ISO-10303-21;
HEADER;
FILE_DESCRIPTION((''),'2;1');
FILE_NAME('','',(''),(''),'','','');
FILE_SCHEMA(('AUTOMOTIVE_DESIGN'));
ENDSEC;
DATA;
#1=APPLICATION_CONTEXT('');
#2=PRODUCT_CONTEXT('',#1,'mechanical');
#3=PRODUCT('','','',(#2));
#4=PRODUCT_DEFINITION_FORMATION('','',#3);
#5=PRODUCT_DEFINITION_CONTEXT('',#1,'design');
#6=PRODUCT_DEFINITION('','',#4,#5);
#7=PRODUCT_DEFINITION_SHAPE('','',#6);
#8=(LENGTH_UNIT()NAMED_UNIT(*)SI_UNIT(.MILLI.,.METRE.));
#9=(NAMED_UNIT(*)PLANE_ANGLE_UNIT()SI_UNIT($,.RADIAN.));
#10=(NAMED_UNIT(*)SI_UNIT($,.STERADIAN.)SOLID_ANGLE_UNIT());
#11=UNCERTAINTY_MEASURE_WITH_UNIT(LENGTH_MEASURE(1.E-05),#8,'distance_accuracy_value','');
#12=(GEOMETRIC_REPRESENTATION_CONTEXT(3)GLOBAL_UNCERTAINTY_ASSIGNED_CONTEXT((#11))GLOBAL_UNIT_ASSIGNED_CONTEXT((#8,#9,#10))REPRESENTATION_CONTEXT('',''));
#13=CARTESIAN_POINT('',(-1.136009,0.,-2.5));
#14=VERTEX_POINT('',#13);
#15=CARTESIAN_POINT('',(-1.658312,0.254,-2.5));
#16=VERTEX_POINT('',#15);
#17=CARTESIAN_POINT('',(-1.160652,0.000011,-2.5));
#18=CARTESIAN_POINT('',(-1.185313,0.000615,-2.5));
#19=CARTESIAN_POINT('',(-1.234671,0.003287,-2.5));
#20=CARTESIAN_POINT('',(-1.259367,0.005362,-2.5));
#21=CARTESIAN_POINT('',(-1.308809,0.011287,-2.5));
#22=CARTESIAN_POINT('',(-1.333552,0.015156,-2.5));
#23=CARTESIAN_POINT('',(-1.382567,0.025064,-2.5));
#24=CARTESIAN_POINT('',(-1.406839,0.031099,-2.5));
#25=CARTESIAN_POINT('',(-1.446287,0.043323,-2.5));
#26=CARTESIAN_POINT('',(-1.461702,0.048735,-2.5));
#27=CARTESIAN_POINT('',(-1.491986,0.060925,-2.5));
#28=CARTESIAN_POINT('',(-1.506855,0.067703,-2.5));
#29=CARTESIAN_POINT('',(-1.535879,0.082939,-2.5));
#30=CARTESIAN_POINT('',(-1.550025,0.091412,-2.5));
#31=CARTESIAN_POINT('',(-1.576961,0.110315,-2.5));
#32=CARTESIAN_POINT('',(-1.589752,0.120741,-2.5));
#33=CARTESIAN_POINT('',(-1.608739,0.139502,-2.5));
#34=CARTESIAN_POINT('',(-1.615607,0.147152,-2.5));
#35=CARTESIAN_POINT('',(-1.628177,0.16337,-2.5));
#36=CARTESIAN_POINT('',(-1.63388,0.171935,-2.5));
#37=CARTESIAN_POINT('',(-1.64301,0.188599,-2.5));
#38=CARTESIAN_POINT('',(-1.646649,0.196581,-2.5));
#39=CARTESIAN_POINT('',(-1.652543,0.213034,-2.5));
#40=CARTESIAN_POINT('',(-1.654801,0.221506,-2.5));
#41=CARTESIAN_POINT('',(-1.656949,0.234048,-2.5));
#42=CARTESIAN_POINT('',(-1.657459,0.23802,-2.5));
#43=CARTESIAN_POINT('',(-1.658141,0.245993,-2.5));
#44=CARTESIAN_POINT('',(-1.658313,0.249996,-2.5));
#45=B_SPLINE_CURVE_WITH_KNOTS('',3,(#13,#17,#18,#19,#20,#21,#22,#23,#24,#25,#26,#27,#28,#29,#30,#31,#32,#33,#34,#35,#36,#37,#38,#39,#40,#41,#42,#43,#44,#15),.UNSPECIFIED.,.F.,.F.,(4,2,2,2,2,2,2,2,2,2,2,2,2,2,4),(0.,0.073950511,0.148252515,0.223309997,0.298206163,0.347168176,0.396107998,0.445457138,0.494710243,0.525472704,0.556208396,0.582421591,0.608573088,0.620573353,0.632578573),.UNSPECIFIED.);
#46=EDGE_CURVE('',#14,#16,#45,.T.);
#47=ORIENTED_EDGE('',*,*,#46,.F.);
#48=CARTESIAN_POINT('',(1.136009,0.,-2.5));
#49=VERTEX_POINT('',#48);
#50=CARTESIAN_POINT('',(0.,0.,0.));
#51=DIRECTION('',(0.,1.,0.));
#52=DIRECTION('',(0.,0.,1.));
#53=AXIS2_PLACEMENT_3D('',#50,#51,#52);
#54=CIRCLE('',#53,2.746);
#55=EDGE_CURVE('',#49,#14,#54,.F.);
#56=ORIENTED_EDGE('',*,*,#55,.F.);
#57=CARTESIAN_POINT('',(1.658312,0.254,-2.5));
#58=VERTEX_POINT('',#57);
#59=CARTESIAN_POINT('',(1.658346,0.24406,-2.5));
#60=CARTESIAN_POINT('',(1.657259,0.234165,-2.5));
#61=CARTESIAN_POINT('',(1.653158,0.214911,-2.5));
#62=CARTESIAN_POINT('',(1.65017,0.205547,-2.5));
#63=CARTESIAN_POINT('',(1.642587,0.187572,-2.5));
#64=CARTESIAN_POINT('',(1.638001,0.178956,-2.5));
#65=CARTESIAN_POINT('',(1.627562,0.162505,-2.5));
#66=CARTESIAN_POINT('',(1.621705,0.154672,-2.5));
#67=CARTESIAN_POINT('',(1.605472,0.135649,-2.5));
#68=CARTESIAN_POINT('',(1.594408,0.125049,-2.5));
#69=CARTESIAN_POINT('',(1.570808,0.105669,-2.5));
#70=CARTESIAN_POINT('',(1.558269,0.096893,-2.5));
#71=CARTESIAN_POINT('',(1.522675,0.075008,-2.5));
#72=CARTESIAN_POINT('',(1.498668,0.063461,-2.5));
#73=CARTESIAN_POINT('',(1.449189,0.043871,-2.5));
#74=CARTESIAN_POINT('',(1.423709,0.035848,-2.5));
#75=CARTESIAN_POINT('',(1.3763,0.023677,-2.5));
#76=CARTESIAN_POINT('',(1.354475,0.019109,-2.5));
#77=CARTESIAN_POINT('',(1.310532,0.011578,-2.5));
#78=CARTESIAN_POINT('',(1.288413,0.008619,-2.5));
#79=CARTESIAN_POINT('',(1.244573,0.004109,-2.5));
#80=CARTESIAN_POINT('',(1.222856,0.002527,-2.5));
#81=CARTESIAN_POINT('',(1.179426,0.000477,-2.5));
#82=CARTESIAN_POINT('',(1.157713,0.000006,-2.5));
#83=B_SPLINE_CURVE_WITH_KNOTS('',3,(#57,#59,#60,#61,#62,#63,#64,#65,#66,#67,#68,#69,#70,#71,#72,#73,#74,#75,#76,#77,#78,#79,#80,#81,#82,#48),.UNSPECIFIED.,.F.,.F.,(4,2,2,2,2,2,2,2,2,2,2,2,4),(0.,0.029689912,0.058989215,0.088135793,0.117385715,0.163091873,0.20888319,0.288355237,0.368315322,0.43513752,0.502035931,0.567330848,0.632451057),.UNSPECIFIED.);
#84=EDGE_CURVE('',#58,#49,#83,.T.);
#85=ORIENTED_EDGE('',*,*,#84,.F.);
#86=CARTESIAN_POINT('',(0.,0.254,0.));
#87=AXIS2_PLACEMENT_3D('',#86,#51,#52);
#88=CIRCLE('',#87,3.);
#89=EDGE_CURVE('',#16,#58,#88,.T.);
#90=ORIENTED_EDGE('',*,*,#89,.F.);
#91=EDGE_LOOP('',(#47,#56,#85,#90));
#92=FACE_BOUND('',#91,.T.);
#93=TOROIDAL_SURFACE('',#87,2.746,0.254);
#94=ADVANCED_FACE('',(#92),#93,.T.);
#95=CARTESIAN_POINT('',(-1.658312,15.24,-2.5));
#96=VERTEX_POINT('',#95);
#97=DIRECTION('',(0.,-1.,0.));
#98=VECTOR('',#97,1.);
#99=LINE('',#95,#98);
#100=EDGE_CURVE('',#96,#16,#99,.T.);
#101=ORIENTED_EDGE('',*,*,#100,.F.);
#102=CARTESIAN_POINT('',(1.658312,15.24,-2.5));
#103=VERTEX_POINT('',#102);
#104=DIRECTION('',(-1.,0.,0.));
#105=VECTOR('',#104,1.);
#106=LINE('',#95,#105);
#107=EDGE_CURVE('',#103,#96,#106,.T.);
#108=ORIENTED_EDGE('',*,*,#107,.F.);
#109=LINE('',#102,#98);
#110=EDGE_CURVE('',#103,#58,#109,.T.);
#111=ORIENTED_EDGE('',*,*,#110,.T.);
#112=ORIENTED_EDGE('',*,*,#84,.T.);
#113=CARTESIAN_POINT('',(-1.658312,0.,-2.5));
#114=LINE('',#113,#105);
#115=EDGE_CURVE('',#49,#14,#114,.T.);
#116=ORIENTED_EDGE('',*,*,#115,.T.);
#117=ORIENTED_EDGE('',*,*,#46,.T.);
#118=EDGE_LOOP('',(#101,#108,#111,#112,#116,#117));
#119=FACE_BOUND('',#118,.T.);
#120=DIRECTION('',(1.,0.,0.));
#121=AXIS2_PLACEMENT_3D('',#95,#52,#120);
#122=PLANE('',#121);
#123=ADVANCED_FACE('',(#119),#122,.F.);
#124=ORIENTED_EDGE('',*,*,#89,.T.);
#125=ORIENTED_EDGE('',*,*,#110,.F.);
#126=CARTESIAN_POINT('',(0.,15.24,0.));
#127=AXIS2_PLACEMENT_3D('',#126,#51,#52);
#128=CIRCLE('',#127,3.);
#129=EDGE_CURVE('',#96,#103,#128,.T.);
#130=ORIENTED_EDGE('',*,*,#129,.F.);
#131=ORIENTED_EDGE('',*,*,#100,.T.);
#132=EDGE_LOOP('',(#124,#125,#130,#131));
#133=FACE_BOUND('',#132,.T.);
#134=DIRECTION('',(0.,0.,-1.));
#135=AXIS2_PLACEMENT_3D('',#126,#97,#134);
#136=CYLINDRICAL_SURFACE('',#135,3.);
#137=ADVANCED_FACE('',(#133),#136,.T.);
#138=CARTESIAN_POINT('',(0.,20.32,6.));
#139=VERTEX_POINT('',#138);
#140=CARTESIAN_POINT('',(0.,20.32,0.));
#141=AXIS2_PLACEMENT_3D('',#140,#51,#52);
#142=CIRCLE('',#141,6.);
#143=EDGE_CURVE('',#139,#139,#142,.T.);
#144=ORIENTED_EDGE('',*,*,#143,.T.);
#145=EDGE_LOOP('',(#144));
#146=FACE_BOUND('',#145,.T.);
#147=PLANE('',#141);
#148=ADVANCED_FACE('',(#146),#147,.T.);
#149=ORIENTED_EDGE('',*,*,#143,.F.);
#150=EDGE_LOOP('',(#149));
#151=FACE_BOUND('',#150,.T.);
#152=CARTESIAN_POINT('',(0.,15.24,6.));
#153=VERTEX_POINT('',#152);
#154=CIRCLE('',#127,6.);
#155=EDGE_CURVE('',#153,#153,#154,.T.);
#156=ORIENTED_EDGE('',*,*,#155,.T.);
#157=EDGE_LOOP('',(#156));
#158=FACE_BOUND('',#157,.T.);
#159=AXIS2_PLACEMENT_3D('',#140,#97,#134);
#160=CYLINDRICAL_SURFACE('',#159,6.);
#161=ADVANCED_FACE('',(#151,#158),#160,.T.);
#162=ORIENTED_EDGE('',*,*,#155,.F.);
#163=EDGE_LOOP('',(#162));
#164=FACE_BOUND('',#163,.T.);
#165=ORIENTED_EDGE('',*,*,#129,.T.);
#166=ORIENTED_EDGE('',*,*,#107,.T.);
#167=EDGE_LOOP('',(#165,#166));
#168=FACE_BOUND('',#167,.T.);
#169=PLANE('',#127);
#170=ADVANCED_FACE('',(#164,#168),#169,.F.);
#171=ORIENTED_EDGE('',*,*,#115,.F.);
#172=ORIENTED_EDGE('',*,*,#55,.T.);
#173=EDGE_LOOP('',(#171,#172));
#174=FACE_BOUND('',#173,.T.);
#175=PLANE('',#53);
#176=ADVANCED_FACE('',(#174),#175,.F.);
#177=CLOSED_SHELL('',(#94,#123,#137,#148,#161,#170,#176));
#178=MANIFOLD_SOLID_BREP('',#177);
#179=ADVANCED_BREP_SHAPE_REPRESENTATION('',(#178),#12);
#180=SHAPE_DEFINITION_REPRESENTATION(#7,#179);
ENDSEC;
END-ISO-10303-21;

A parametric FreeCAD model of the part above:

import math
import FreeCAD as App
import Part
import Sketcher

V = App.Vector


def edges_at(feature, points):
    """Names of the edges that pass closest to the given points."""
    edges = feature.Shape.Edges
    near = lambda p: min(range(len(edges)), key=lambda i: edges[i].distToShape(Part.Vertex(*p))[0])
    return sorted({f"Edge{near(p) + 1}" for p in points})

doc = App.newDocument("Part")
params = doc.addObject("Spreadsheet::Sheet", "Params")
for row, (alias, value) in enumerate([
    ("pad1_length", "0.6 in"),
    ("pad2_length", "0.2 in"),
    ("fillet_radius", "0.01 in"),
], start=1):
    params.set(f"A{row}", alias)
    params.set(f"B{row}", "=" + value)
    params.setAlias(f"B{row}", alias)

body = doc.addObject("PartDesign::Body", "Body")

# Sketch on XZ plane
sketch1 = body.newObject("Sketcher::SketchObject", "Sketch")
sketch1.AttachmentSupport = (doc.getObject("XZ_Plane"), [""])
sketch1.MapMode = "FlatFace"
sketch1.addGeometry([
    Part.LineSegment(V(1.7, -2.5, 0), V(-1.7, -2.5, 0)),
    Part.ArcOfCircle(Part.Circle(V(0, 0, 0), V(0, 0, 1), 3), math.radians(-56), math.radians(236)),
], False)
sketch1.addConstraint([
    Sketcher.Constraint("Coincident", 0, 1, 1, 1),
    Sketcher.Constraint("Coincident", 1, 2, 0, 2),
    Sketcher.Constraint("Horizontal", 0),
    Sketcher.Constraint("Coincident", 1, 3, -1, 1),
    Sketcher.Constraint("Radius", 1, 3.0),
    Sketcher.Constraint("DistanceY", 0, 1, -1, 1, 2.5),
])
pad1 = body.newObject("PartDesign::Pad", "Pad")
pad1.Profile = sketch1
pad1.setExpression("Length", "Params.pad1_length")
pad1.Reversed = True

# Sketch on XZ plane
sketch2 = body.newObject("Sketcher::SketchObject", "Sketch001")
sketch2.AttachmentSupport = (doc.getObject("XZ_Plane"), [""])
sketch2.MapMode = "FlatFace"
sketch2.AttachmentOffset = App.Placement(V(0, 0, -0.6 * 25.4), App.Rotation())
sketch2.addGeometry(Part.Circle(V(0, 0, 0), V(0, 0, 1), 6), False)
sketch2.addConstraint([
    Sketcher.Constraint("Coincident", 0, 3, -1, 1),
    Sketcher.Constraint("Diameter", 0, 12.0),
])
pad2 = body.newObject("PartDesign::Pad", "Pad001")
pad2.Profile = sketch2
pad2.setExpression("Length", "Params.pad2_length")
pad2.Reversed = True
doc.recompute()

fillet = body.newObject("PartDesign::Fillet", "Fillet")
fillet.Base = (pad2, edges_at(pad2, [(0, 0, 3)]))
fillet.setExpression("Radius", "Params.fillet_radius")

doc.recompute()
